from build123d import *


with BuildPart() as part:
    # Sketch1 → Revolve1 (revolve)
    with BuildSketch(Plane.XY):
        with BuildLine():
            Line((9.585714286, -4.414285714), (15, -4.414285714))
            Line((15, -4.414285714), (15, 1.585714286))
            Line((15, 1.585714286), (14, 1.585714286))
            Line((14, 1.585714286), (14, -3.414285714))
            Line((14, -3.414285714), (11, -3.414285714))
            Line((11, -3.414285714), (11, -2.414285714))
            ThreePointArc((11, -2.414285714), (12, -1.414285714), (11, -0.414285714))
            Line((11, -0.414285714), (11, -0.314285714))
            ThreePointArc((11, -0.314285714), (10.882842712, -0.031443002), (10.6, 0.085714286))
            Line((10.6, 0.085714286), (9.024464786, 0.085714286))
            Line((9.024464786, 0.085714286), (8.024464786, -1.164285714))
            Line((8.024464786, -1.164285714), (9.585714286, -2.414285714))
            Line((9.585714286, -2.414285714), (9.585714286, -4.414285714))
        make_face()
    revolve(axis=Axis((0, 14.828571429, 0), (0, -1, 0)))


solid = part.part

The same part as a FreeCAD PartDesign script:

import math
import FreeCAD as App
import Part
import Sketcher

V = App.Vector

doc = App.newDocument("Part")
body = doc.addObject("PartDesign::Body", "Body")

# Sketch on XY plane
sketch1 = doc.addObject("Sketcher::SketchObject", "Sketch")
body.addObject(sketch1)
sketch1.AttachmentSupport = (doc.XY_Plane, [""])
sketch1.MapMode = "FlatFace"
sketch1.addGeometry(Part.LineSegment(V(9.59, -4.41, 0), V(15, -4.41, 0)), False)
sketch1.addGeometry(Part.LineSegment(V(15, -4.41, 0), V(15, 1.59, 0)), False)
sketch1.addGeometry(Part.LineSegment(V(15, 1.59, 0), V(14, 1.59, 0)), False)
sketch1.addGeometry(Part.LineSegment(V(14, 1.59, 0), V(14, -3.41, 0)), False)
sketch1.addGeometry(Part.LineSegment(V(14, -3.41, 0), V(11, -3.41, 0)), False)
sketch1.addGeometry(Part.LineSegment(V(11, -3.41, 0), V(11, -2.41, 0)), False)
sketch1.addGeometry(Part.ArcOfCircle(Part.Circle(V(11, -1.41, 0), V(0, 0, 1), 1), math.radians(-90), math.radians(90)), False)
sketch1.addGeometry(Part.LineSegment(V(11, -0.41, 0), V(11, -0.31, 0)), False)
sketch1.addGeometry(Part.ArcOfCircle(Part.Circle(V(10.6, -0.31, 0), V(0, 0, 1), 0.4), math.radians(0), math.radians(90)), False)
sketch1.addGeometry(Part.LineSegment(V(10.6, 0.09, 0), V(9.02, 0.09, 0)), False)
sketch1.addGeometry(Part.LineSegment(V(9.02, 0.09, 0), V(8.02, -1.16, 0)), False)
sketch1.addGeometry(Part.LineSegment(V(8.02, -1.16, 0), V(9.59, -2.41, 0)), False)
sketch1.addGeometry(Part.LineSegment(V(9.59, -2.41, 0), V(9.59, -4.41, 0)), False)
sketch1.addConstraint(Sketcher.Constraint("Coincident", 0, 2, 1, 1))
sketch1.addConstraint(Sketcher.Constraint("Coincident", 1, 2, 2, 1))
sketch1.addConstraint(Sketcher.Constraint("Coincident", 2, 2, 3, 1))
sketch1.addConstraint(Sketcher.Constraint("Coincident", 3, 2, 4, 1))
sketch1.addConstraint(Sketcher.Constraint("Coincident", 4, 2, 5, 1))
sketch1.addConstraint(Sketcher.Constraint("Coincident", 5, 2, 6, 1))
sketch1.addConstraint(Sketcher.Constraint("Coincident", 6, 2, 7, 1))
sketch1.addConstraint(Sketcher.Constraint("Tangent", 7, 2, 8, 1))
sketch1.addConstraint(Sketcher.Constraint("Tangent", 8, 2, 9, 1))
sketch1.addConstraint(Sketcher.Constraint("Coincident", 9, 2, 10, 1))
sketch1.addConstraint(Sketcher.Constraint("Coincident", 10, 2, 11, 1))
sketch1.addConstraint(Sketcher.Constraint("Coincident", 11, 2, 12, 1))
sketch1.addConstraint(Sketcher.Constraint("Coincident", 12, 2, 0, 1))
sketch1.addConstraint(Sketcher.Constraint("Horizontal", 0))
sketch1.addConstraint(Sketcher.Constraint("Vertical", 1))
sketch1.addConstraint(Sketcher.Constraint("Horizontal", 2))
sketch1.addConstraint(Sketcher.Constraint("Vertical", 3))
sketch1.addConstraint(Sketcher.Constraint("Horizontal", 4))
sketch1.addConstraint(Sketcher.Constraint("Vertical", 5))
sketch1.addConstraint(Sketcher.Constraint("Vertical", 7))
sketch1.addConstraint(Sketcher.Constraint("Horizontal", 9))
sketch1.addConstraint(Sketcher.Constraint("Vertical", 12))
sketch1.addConstraint(Sketcher.Constraint("Horizontal", 5, 2, 11, 2))
sketch1.addConstraint(Sketcher.Constraint("Vertical", 6, 3, 4, 2))
sketch1.addConstraint(Sketcher.Constraint("Vertical", 5, 2, 6, 2))
sketch1.addConstraint(Sketcher.Constraint("Equal", 2, 5))
sketch1.addConstraint(Sketcher.Constraint("Radius", 6, 1.0))
sketch1.addConstraint(Sketcher.Constraint("Radius", 8, 0.4))
sketch1.addConstraint(Sketcher.Constraint("DistanceX", 2, 2, 2, 1, 1.0))
sketch1.addConstraint(Sketcher.Constraint("DistanceX", 4, 2, 4, 1, 3.0))
sketch1.addConstraint(Sketcher.Constraint("DistanceY", 1, 1, 1, 2, 6.0))
sketch1.addConstraint(Sketcher.Constraint("DistanceY", 3, 2, 3, 1, 5.0))
sketch1.addConstraint(Sketcher.Constraint("Distance", 11, 2.0))
sketch1.addConstraint(Sketcher.Constraint("DistanceY", 7, 1, 7, 2, 0.1))
sketch1.addConstraint(Sketcher.Constraint("DistanceX", -1, 1, 6, 3, 11.0))
sketch1.addConstraint(Sketcher.Constraint("DistanceX", 10, 2, 9, 2, 1.0))
sketch1.addConstraint(Sketcher.Constraint("DistanceY", 10, 2, 9, 2, 1.25))
sketch1.addConstraint(Sketcher.Constraint("DistanceX", 0, 1, 0, 2, 5.414286))
sketch1.addConstraint(Sketcher.Constraint("DistanceY", 6, 3, -1, 1, 1.414286))
revolution = doc.addObject("PartDesign::Revolution", "Revolution")
body.addObject(revolution)
revolution.Profile = sketch1
revolution.ReferenceAxis = (sketch1, ["V_Axis"])
revolution.Angle = 360

doc.recompute()
